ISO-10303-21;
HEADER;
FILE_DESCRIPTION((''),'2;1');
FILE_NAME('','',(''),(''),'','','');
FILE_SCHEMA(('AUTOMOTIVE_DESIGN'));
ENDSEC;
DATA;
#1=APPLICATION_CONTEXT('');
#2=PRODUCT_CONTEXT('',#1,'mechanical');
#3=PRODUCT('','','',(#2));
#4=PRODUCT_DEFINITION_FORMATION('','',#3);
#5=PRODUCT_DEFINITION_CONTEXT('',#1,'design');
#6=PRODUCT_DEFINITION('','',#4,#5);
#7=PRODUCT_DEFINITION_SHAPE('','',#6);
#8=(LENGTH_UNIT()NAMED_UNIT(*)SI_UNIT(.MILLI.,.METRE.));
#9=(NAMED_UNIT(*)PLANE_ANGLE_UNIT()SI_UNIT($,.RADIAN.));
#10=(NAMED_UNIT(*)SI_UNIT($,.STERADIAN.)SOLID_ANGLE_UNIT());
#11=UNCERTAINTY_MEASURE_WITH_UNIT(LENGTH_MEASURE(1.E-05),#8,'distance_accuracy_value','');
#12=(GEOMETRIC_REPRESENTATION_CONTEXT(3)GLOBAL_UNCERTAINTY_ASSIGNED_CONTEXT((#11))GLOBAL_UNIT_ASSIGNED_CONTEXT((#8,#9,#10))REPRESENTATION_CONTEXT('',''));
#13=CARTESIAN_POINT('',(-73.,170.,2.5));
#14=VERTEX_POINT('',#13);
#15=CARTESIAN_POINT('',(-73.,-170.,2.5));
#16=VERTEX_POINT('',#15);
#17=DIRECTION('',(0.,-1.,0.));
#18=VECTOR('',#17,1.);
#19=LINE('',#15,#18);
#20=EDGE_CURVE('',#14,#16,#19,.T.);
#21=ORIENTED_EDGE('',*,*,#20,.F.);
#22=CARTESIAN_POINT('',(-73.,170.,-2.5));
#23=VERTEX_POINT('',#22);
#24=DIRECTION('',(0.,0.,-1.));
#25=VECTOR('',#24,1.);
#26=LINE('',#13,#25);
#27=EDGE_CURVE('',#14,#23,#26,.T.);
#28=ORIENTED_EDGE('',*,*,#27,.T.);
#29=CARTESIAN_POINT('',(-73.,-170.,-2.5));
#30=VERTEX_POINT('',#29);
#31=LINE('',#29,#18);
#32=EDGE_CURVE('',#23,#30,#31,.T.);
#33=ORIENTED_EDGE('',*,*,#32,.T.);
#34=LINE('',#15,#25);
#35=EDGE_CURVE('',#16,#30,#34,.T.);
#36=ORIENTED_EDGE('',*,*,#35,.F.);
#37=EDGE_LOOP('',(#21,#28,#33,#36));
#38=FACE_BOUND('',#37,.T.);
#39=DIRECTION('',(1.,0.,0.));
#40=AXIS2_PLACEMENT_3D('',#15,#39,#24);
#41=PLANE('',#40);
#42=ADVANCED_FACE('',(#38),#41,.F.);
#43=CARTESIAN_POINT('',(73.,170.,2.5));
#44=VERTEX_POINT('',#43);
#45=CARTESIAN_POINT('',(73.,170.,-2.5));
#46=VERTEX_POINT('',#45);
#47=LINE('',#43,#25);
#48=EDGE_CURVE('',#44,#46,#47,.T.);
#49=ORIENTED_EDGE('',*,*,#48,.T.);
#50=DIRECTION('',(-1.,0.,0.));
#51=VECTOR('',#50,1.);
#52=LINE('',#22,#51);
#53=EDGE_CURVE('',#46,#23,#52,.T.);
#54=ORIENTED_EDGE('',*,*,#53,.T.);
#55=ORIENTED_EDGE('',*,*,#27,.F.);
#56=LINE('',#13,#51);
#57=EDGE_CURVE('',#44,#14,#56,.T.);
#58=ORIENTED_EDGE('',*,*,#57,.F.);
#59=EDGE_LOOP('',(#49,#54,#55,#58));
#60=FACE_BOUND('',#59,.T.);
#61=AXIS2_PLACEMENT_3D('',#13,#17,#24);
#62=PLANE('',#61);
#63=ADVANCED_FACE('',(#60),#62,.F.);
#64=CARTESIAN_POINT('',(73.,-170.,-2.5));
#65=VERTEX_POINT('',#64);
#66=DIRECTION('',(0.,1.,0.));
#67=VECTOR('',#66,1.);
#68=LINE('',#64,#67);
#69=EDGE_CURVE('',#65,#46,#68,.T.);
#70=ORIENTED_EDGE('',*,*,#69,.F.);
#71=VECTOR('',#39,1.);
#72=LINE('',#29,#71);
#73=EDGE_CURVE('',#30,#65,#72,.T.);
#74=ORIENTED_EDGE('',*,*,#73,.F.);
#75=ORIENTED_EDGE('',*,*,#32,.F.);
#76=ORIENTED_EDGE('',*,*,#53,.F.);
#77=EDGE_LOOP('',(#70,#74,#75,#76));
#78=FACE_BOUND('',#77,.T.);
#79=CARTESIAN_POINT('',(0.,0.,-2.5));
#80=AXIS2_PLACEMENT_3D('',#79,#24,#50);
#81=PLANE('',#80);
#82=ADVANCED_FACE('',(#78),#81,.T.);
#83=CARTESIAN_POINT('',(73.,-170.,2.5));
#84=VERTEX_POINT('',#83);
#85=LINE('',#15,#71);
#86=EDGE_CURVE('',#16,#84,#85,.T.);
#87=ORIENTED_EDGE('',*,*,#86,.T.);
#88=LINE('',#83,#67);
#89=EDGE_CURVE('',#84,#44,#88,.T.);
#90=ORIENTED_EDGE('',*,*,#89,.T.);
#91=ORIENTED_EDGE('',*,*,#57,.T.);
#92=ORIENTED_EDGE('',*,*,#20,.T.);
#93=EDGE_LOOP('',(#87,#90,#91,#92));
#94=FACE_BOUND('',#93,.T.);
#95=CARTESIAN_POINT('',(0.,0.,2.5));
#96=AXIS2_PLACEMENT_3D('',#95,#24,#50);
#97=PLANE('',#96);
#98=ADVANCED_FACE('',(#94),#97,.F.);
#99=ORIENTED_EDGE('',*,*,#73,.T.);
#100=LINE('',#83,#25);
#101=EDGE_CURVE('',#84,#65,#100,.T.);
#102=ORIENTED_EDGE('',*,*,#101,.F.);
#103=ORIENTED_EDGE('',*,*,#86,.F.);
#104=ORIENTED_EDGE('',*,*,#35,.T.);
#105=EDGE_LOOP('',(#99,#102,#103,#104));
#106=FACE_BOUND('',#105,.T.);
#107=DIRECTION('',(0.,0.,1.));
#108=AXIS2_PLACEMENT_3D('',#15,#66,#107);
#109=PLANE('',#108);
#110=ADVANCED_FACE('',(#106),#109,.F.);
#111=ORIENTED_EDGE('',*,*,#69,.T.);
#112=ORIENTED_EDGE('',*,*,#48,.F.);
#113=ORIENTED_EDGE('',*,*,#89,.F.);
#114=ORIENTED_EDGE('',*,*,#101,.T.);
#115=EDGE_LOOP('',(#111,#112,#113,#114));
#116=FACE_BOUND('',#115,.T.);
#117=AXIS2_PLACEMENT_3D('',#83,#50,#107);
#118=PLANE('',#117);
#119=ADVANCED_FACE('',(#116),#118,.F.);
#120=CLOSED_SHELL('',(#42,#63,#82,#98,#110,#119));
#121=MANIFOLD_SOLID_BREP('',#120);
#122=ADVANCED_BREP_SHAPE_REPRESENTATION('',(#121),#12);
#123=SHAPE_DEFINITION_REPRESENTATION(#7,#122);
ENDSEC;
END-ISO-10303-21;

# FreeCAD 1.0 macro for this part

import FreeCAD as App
import Part
import Sketcher

V = App.Vector
Q = App.Units.Quantity


def add_polygon(sketch, points):
    """Adds a closed chain of lines whose ends are joined by coincident constraints."""
    first, n = sketch.GeometryCount, len(points)
    for a, b in zip(points, points[1:] + points[:1]):
        sketch.addGeometry(Part.LineSegment(App.Vector(*a, 0), App.Vector(*b, 0)), False)
    for i in range(n):
        sketch.addConstraint(Sketcher.Constraint("Coincident", first + i, 2, first + (i + 1) % n, 1))

doc = App.newDocument("Part")
body = doc.addObject("PartDesign::Body", "Body")

# Sketch on XY plane
sketch1 = body.newObject("Sketcher::SketchObject", "Sketch")
sketch1.AttachmentSupport = (doc.getObject("XY_Plane"), [""])
sketch1.MapMode = "FlatFace"
add_polygon(sketch1, [(-73, 170), (-73, -170), (73, -170), (73, 170)])  # lines 0-3
sketch1.addConstraint(Sketcher.Constraint("Vertical", 0))
sketch1.addConstraint(Sketcher.Constraint("Horizontal", 1))
sketch1.addConstraint(Sketcher.Constraint("Vertical", 2))
sketch1.addConstraint(Sketcher.Constraint("Horizontal", 3))
sketch1.addConstraint(Sketcher.Constraint("Symmetric", 0, 2, 2, 2, -1, 1))
sketch1.addConstraint(Sketcher.Constraint("DistanceX", 1, 1, 1, 2, Q("146 mm")))
sketch1.addConstraint(Sketcher.Constraint("DistanceY", 0, 2, 0, 1, Q("340 mm")))
pad1 = body.newObject("PartDesign::Pad", "Pad")
pad1.Profile = sketch1
pad1.Length = 5
pad1.Midplane = True

doc.recompute()
